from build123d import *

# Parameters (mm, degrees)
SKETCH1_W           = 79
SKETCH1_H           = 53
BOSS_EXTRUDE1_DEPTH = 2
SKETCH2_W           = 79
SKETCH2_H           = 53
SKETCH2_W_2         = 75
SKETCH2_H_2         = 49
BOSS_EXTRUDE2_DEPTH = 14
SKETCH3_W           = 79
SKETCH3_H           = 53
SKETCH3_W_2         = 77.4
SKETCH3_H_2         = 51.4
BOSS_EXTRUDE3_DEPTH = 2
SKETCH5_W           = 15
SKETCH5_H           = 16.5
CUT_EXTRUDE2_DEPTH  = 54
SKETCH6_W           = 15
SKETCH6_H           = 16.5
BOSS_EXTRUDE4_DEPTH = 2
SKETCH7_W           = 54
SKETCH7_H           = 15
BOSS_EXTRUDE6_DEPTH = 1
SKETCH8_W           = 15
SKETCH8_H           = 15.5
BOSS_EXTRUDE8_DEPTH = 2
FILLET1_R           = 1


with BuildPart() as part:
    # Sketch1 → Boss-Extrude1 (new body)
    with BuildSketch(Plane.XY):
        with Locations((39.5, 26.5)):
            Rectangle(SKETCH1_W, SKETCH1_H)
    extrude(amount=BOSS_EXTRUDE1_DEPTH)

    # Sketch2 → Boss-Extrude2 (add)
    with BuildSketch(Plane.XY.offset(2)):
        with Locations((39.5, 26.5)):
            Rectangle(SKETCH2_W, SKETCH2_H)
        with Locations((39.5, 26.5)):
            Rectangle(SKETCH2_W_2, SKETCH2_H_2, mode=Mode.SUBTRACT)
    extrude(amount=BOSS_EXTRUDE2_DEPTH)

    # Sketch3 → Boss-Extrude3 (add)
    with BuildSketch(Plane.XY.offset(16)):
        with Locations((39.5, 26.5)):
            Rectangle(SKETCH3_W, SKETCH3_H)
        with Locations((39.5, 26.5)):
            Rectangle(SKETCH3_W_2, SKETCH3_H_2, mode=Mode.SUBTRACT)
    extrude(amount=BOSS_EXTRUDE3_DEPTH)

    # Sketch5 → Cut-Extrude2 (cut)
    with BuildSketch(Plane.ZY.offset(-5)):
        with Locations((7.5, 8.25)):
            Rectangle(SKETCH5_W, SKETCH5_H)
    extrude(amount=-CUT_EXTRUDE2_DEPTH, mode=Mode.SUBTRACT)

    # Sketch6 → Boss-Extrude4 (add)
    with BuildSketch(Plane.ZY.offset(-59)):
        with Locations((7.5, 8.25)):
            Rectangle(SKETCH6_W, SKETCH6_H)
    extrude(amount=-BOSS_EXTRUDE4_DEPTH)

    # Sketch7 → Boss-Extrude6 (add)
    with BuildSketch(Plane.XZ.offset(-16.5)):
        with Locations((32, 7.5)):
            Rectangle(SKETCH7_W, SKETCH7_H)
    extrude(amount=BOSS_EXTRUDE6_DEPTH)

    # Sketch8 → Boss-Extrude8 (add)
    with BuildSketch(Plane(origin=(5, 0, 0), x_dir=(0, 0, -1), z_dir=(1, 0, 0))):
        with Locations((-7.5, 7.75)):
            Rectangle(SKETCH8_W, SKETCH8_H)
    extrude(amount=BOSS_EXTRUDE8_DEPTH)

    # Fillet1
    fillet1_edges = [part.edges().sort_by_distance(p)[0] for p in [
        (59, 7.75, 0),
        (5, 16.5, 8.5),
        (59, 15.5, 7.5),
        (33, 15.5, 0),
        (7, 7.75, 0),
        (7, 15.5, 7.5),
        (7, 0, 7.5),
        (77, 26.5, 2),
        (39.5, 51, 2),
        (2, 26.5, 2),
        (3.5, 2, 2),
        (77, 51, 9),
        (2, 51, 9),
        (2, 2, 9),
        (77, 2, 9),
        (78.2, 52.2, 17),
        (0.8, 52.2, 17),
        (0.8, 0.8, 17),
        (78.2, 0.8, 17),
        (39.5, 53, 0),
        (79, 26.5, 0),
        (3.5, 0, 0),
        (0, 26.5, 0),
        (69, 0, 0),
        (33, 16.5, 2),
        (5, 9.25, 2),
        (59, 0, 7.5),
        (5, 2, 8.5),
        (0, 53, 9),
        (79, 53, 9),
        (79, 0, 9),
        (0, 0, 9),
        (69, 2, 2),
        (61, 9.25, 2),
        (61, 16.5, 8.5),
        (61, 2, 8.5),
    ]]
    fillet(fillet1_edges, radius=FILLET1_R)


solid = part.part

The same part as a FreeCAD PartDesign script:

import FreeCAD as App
import Part
import Sketcher
from FreeCAD import Vector


def edges_at(feature, points):
    """Names of the edges that pass closest to the given points."""
    edges = feature.Shape.Edges
    near = lambda p: min(range(len(edges)), key=lambda i: edges[i].distToShape(Part.Vertex(*p))[0])
    return sorted({f"Edge{near(p) + 1}" for p in points})

doc = App.newDocument("Part")
body = doc.addObject("PartDesign::Body", "Body")

# Sketch on XY plane
sketch1 = body.newObject("Sketcher::SketchObject", "Sketch")
sketch1.AttachmentSupport = (doc.getObject("XY_Plane"), [""])
sketch1.MapMode = "FlatFace"
sketch1.addGeometry([
    Part.LineSegment(Vector(0, 53, 0), Vector(0, 0, 0)),
    Part.LineSegment(Vector(0, 0, 0), Vector(79, 0, 0)),
    Part.LineSegment(Vector(79, 0, 0), Vector(79, 53, 0)),
    Part.LineSegment(Vector(79, 53, 0), Vector(0, 53, 0)),
], False)
sketch1.addConstraint([
    Sketcher.Constraint("Coincident", 0, 2, 1, 1),
    Sketcher.Constraint("Coincident", 1, 2, 2, 1),
    Sketcher.Constraint("Coincident", 2, 2, 3, 1),
    Sketcher.Constraint("Coincident", 3, 2, 0, 1),
    Sketcher.Constraint("Vertical", 0),
    Sketcher.Constraint("Horizontal", 1),
    Sketcher.Constraint("Vertical", 2),
    Sketcher.Constraint("Horizontal", 3),
    Sketcher.Constraint("Coincident", 0, 2, -1, 1),
    Sketcher.Constraint("DistanceX", 1, 1, 1, 2, 79.0),
    Sketcher.Constraint("DistanceY", 0, 2, 0, 1, 53.0),
])
pad1 = body.newObject("PartDesign::Pad", "Pad")
pad1.Profile = sketch1
pad1.Length = 2

# Sketch on XY plane
sketch2 = body.newObject("Sketcher::SketchObject", "Sketch001")
sketch2.AttachmentSupport = (doc.getObject("XY_Plane"), [""])
sketch2.MapMode = "FlatFace"
sketch2.AttachmentOffset = App.Placement(Vector(0, 0, 2), App.Rotation())
sketch2.addGeometry([
    Part.LineSegment(Vector(0, 53, 0), Vector(0, 0, 0)),  # 0
    Part.LineSegment(Vector(0, 0, 0), Vector(79, 0, 0)),  # 1
    Part.LineSegment(Vector(79, 0, 0), Vector(79, 53, 0)),  # 2
    Part.LineSegment(Vector(79, 53, 0), Vector(0, 53, 0)),  # 3
    Part.LineSegment(Vector(77, 2, 0), Vector(2, 2, 0)),  # 4
    Part.LineSegment(Vector(2, 2, 0), Vector(2, 51, 0)),  # 5
    Part.LineSegment(Vector(2, 51, 0), Vector(77, 51, 0)),  # 6
    Part.LineSegment(Vector(77, 51, 0), Vector(77, 2, 0)),  # 7
], False)
sketch2.addConstraint([
    Sketcher.Constraint("Coincident", 0, 2, 1, 1),
    Sketcher.Constraint("Coincident", 1, 2, 2, 1),
    Sketcher.Constraint("Coincident", 2, 2, 3, 1),
    Sketcher.Constraint("Coincident", 3, 2, 0, 1),
    Sketcher.Constraint("Coincident", 4, 2, 5, 1),
    Sketcher.Constraint("Coincident", 5, 2, 6, 1),
    Sketcher.Constraint("Coincident", 6, 2, 7, 1),
    Sketcher.Constraint("Coincident", 7, 2, 4, 1),
    Sketcher.Constraint("Vertical", 0),
    Sketcher.Constraint("Horizontal", 1),
    Sketcher.Constraint("Vertical", 2),
    Sketcher.Constraint("Horizontal", 3),
    Sketcher.Constraint("Horizontal", 4),
    Sketcher.Constraint("Vertical", 5),
    Sketcher.Constraint("Horizontal", 6),
    Sketcher.Constraint("Vertical", 7),
    Sketcher.Constraint("Coincident", 0, 2, -1, 1),
    Sketcher.Constraint("DistanceX", 1, 1, 1, 2, 79.0),
    Sketcher.Constraint("DistanceX", 4, 2, 4, 1, 75.0),
    Sketcher.Constraint("DistanceY", 0, 2, 0, 1, 53.0),
    Sketcher.Constraint("DistanceY", 5, 1, 5, 2, 49.0),
    Sketcher.Constraint("DistanceX", -1, 1, 4, 2, 2.0),
    Sketcher.Constraint("DistanceY", -1, 1, 4, 2, 2.0),
])
pad2 = body.newObject("PartDesign::Pad", "Pad001")
pad2.Profile = sketch2
pad2.Length = 14

# Sketch on XY plane
sketch3 = body.newObject("Sketcher::SketchObject", "Sketch002")
sketch3.AttachmentSupport = (doc.getObject("XY_Plane"), [""])
sketch3.MapMode = "FlatFace"
sketch3.AttachmentOffset = App.Placement(Vector(0, 0, 16), App.Rotation())
sketch3.addGeometry([
    Part.LineSegment(Vector(0, 53, 0), Vector(0, 0, 0)),  # 0
    Part.LineSegment(Vector(0, 0, 0), Vector(79, 0, 0)),  # 1
    Part.LineSegment(Vector(79, 0, 0), Vector(79, 53, 0)),  # 2
    Part.LineSegment(Vector(79, 53, 0), Vector(0, 53, 0)),  # 3
    Part.LineSegment(Vector(78, 1, 0), Vector(1, 1, 0)),  # 4
    Part.LineSegment(Vector(1, 1, 0), Vector(1, 52, 0)),  # 5
    Part.LineSegment(Vector(1, 52, 0), Vector(78, 52, 0)),  # 6
    Part.LineSegment(Vector(78, 52, 0), Vector(78, 1, 0)),  # 7
], False)
sketch3.addConstraint([
    Sketcher.Constraint("Coincident", 0, 2, 1, 1),
    Sketcher.Constraint("Coincident", 1, 2, 2, 1),
    Sketcher.Constraint("Coincident", 2, 2, 3, 1),
    Sketcher.Constraint("Coincident", 3, 2, 0, 1),
    Sketcher.Constraint("Coincident", 4, 2, 5, 1),
    Sketcher.Constraint("Coincident", 5, 2, 6, 1),
    Sketcher.Constraint("Coincident", 6, 2, 7, 1),
    Sketcher.Constraint("Coincident", 7, 2, 4, 1),
    Sketcher.Constraint("Vertical", 0),
    Sketcher.Constraint("Horizontal", 1),
    Sketcher.Constraint("Vertical", 2),
    Sketcher.Constraint("Horizontal", 3),
    Sketcher.Constraint("Horizontal", 4),
    Sketcher.Constraint("Vertical", 5),
    Sketcher.Constraint("Horizontal", 6),
    Sketcher.Constraint("Vertical", 7),
    Sketcher.Constraint("Coincident", 0, 2, -1, 1),
    Sketcher.Constraint("DistanceX", 1, 1, 1, 2, 79.0),
    Sketcher.Constraint("DistanceY", 0, 2, 0, 1, 53.0),
    Sketcher.Constraint("DistanceX", 4, 2, 4, 1, 77.4),
    Sketcher.Constraint("DistanceY", 5, 1, 5, 2, 51.4),
    Sketcher.Constraint("DistanceX", -1, 1, 4, 2, 0.8),
    Sketcher.Constraint("DistanceY", -1, 1, 4, 2, 0.8),
])
pad3 = body.newObject("PartDesign::Pad", "Pad002")
pad3.Profile = sketch3
pad3.Length = 2

# Sketch on YZ plane
sketch4 = body.newObject("Sketcher::SketchObject", "Sketch003")
sketch4.AttachmentSupport = (doc.getObject("YZ_Plane"), [""])
sketch4.MapMode = "FlatFace"
sketch4.AttachmentOffset = App.Placement(Vector(0, 0, 5), App.Rotation())
sketch4.addGeometry([
    Part.LineSegment(Vector(16, 0, 0), Vector(0, 0, 0)),
    Part.LineSegment(Vector(0, 0, 0), Vector(0, 15, 0)),
    Part.LineSegment(Vector(0, 15, 0), Vector(16, 15, 0)),
    Part.LineSegment(Vector(16, 15, 0), Vector(16, 0, 0)),
], False)
sketch4.addConstraint([
    Sketcher.Constraint("Coincident", 0, 2, 1, 1),
    Sketcher.Constraint("Coincident", 1, 2, 2, 1),
    Sketcher.Constraint("Coincident", 2, 2, 3, 1),
    Sketcher.Constraint("Coincident", 3, 2, 0, 1),
    Sketcher.Constraint("Horizontal", 0),
    Sketcher.Constraint("Vertical", 1),
    Sketcher.Constraint("Horizontal", 2),
    Sketcher.Constraint("Vertical", 3),
    Sketcher.Constraint("Coincident", 0, 2, -1, 1),
    Sketcher.Constraint("DistanceY", 1, 1, 1, 2, 15.0),
    Sketcher.Constraint("DistanceX", 0, 2, 0, 1, 16.5),
])
pocket1 = body.newObject("PartDesign::Pocket", "Pocket")
pocket1.Profile = sketch4
pocket1.Length = 54
pocket1.Reversed = True

# Sketch on YZ plane
sketch5 = body.newObject("Sketcher::SketchObject", "Sketch004")
sketch5.AttachmentSupport = (doc.getObject("YZ_Plane"), [""])
sketch5.MapMode = "FlatFace"
sketch5.AttachmentOffset = App.Placement(Vector(0, 0, 59), App.Rotation())
sketch5.addGeometry([
    Part.LineSegment(Vector(16, 0, 0), Vector(0, 0, 0)),
    Part.LineSegment(Vector(0, 0, 0), Vector(0, 15, 0)),
    Part.LineSegment(Vector(0, 15, 0), Vector(16, 15, 0)),
    Part.LineSegment(Vector(16, 15, 0), Vector(16, 0, 0)),
], False)
sketch5.addConstraint([
    Sketcher.Constraint("Coincident", 0, 2, 1, 1),
    Sketcher.Constraint("Coincident", 1, 2, 2, 1),
    Sketcher.Constraint("Coincident", 2, 2, 3, 1),
    Sketcher.Constraint("Coincident", 3, 2, 0, 1),
    Sketcher.Constraint("Horizontal", 0),
    Sketcher.Constraint("Vertical", 1),
    Sketcher.Constraint("Horizontal", 2),
    Sketcher.Constraint("Vertical", 3),
    Sketcher.Constraint("Coincident", 0, 2, -1, 1),
    Sketcher.Constraint("DistanceY", 1, 1, 1, 2, 15.0),
    Sketcher.Constraint("DistanceX", 0, 2, 0, 1, 16.5),
])
pad4 = body.newObject("PartDesign::Pad", "Pad003")
pad4.Profile = sketch5
pad4.Length = 2

# Sketch on XZ plane
sketch6 = body.newObject("Sketcher::SketchObject", "Sketch005")
sketch6.AttachmentSupport = (doc.getObject("XZ_Plane"), [""])
sketch6.MapMode = "FlatFace"
sketch6.AttachmentOffset = App.Placement(Vector(0, 0, -16.5), App.Rotation())
sketch6.addGeometry([
    Part.LineSegment(Vector(5, 15, 0), Vector(5, 0, 0)),
    Part.LineSegment(Vector(5, 0, 0), Vector(59, 0, 0)),
    Part.LineSegment(Vector(59, 0, 0), Vector(59, 15, 0)),
    Part.LineSegment(Vector(59, 15, 0), Vector(5, 15, 0)),
], False)
sketch6.addConstraint([
    Sketcher.Constraint("Coincident", 0, 2, 1, 1),
    Sketcher.Constraint("Coincident", 1, 2, 2, 1),
    Sketcher.Constraint("Coincident", 2, 2, 3, 1),
    Sketcher.Constraint("Coincident", 3, 2, 0, 1),
    Sketcher.Constraint("Vertical", 0),
    Sketcher.Constraint("Horizontal", 1),
    Sketcher.Constraint("Vertical", 2),
    Sketcher.Constraint("Horizontal", 3),
    Sketcher.Constraint("PointOnObject", 0, 2, -1),
    Sketcher.Constraint("DistanceX", 1, 1, 1, 2, 54.0),
    Sketcher.Constraint("DistanceY", 0, 2, 0, 1, 15.0),
    Sketcher.Constraint("DistanceX", -1, 1, 0, 2, 5.0),
])
pad5 = body.newObject("PartDesign::Pad", "Pad004")
pad5.Profile = sketch6
pad5.Length = 1

# Sketch on YZ plane
sketch7 = body.newObject("Sketcher::SketchObject", "Sketch006")
sketch7.AttachmentSupport = (doc.getObject("YZ_Plane"), [""])
sketch7.MapMode = "FlatFace"
sketch7.AttachmentOffset = App.Placement(Vector(0, 0, 5), App.Rotation())
sketch7.addGeometry([
    Part.LineSegment(Vector(16, 15, 0), Vector(0, 15, 0)),
    Part.LineSegment(Vector(0, 15, 0), Vector(0, 0, 0)),
    Part.LineSegment(Vector(0, 0, 0), Vector(16, 0, 0)),
    Part.LineSegment(Vector(16, 0, 0), Vector(16, 15, 0)),
], False)
sketch7.addConstraint([
    Sketcher.Constraint("Coincident", 0, 2, 1, 1),
    Sketcher.Constraint("Coincident", 1, 2, 2, 1),
    Sketcher.Constraint("Coincident", 2, 2, 3, 1),
    Sketcher.Constraint("Coincident", 3, 2, 0, 1),
    Sketcher.Constraint("Horizontal", 0),
    Sketcher.Constraint("Vertical", 1),
    Sketcher.Constraint("Horizontal", 2),
    Sketcher.Constraint("Vertical", 3),
    Sketcher.Constraint("Coincident", 1, 2, -1, 1),
    Sketcher.Constraint("DistanceY", 1, 2, 1, 1, 15.0),
    Sketcher.Constraint("DistanceX", 0, 2, 0, 1, 15.5),
])
pad6 = body.newObject("PartDesign::Pad", "Pad005")
pad6.Profile = sketch7
pad6.Length = 2
doc.recompute()

fillet = body.newObject("PartDesign::Fillet", "Fillet")
fillet.Base = (pad6, edges_at(pad6, [
    (59, 7.75, 0),
    (5, 16.5, 8.5),
    (59, 15.5, 7.5),
    (33, 15.5, 0),
    (7, 7.75, 0),
    (7, 15.5, 7.5),
    (7, 0, 7.5),
    (77, 26.5, 2),
    (39.5, 51, 2),
    (2, 26.5, 2),
    (3.5, 2, 2),
    (77, 51, 9),
    (2, 51, 9),
    (2, 2, 9),
    (77, 2, 9),
    (78.2, 52.2, 17),
    (0.8, 52.2, 17),
    (0.8, 0.8, 17),
    (78.2, 0.8, 17),
    (39.5, 53, 0),
    (79, 26.5, 0),
    (3.5, 0, 0),
    (0, 26.5, 0),
    (69, 0, 0),
    (33, 16.5, 2),
    (5, 9.25, 2),
    (59, 0, 7.5),
    (5, 2, 8.5),
    (0, 53, 9),
    (79, 53, 9),
    (79, 0, 9),
    (0, 0, 9),
    (69, 2, 2),
    (61, 9.25, 2),
    (61, 16.5, 8.5),
    (61, 2, 8.5),
]))
fillet.Radius = 1

doc.recompute()
